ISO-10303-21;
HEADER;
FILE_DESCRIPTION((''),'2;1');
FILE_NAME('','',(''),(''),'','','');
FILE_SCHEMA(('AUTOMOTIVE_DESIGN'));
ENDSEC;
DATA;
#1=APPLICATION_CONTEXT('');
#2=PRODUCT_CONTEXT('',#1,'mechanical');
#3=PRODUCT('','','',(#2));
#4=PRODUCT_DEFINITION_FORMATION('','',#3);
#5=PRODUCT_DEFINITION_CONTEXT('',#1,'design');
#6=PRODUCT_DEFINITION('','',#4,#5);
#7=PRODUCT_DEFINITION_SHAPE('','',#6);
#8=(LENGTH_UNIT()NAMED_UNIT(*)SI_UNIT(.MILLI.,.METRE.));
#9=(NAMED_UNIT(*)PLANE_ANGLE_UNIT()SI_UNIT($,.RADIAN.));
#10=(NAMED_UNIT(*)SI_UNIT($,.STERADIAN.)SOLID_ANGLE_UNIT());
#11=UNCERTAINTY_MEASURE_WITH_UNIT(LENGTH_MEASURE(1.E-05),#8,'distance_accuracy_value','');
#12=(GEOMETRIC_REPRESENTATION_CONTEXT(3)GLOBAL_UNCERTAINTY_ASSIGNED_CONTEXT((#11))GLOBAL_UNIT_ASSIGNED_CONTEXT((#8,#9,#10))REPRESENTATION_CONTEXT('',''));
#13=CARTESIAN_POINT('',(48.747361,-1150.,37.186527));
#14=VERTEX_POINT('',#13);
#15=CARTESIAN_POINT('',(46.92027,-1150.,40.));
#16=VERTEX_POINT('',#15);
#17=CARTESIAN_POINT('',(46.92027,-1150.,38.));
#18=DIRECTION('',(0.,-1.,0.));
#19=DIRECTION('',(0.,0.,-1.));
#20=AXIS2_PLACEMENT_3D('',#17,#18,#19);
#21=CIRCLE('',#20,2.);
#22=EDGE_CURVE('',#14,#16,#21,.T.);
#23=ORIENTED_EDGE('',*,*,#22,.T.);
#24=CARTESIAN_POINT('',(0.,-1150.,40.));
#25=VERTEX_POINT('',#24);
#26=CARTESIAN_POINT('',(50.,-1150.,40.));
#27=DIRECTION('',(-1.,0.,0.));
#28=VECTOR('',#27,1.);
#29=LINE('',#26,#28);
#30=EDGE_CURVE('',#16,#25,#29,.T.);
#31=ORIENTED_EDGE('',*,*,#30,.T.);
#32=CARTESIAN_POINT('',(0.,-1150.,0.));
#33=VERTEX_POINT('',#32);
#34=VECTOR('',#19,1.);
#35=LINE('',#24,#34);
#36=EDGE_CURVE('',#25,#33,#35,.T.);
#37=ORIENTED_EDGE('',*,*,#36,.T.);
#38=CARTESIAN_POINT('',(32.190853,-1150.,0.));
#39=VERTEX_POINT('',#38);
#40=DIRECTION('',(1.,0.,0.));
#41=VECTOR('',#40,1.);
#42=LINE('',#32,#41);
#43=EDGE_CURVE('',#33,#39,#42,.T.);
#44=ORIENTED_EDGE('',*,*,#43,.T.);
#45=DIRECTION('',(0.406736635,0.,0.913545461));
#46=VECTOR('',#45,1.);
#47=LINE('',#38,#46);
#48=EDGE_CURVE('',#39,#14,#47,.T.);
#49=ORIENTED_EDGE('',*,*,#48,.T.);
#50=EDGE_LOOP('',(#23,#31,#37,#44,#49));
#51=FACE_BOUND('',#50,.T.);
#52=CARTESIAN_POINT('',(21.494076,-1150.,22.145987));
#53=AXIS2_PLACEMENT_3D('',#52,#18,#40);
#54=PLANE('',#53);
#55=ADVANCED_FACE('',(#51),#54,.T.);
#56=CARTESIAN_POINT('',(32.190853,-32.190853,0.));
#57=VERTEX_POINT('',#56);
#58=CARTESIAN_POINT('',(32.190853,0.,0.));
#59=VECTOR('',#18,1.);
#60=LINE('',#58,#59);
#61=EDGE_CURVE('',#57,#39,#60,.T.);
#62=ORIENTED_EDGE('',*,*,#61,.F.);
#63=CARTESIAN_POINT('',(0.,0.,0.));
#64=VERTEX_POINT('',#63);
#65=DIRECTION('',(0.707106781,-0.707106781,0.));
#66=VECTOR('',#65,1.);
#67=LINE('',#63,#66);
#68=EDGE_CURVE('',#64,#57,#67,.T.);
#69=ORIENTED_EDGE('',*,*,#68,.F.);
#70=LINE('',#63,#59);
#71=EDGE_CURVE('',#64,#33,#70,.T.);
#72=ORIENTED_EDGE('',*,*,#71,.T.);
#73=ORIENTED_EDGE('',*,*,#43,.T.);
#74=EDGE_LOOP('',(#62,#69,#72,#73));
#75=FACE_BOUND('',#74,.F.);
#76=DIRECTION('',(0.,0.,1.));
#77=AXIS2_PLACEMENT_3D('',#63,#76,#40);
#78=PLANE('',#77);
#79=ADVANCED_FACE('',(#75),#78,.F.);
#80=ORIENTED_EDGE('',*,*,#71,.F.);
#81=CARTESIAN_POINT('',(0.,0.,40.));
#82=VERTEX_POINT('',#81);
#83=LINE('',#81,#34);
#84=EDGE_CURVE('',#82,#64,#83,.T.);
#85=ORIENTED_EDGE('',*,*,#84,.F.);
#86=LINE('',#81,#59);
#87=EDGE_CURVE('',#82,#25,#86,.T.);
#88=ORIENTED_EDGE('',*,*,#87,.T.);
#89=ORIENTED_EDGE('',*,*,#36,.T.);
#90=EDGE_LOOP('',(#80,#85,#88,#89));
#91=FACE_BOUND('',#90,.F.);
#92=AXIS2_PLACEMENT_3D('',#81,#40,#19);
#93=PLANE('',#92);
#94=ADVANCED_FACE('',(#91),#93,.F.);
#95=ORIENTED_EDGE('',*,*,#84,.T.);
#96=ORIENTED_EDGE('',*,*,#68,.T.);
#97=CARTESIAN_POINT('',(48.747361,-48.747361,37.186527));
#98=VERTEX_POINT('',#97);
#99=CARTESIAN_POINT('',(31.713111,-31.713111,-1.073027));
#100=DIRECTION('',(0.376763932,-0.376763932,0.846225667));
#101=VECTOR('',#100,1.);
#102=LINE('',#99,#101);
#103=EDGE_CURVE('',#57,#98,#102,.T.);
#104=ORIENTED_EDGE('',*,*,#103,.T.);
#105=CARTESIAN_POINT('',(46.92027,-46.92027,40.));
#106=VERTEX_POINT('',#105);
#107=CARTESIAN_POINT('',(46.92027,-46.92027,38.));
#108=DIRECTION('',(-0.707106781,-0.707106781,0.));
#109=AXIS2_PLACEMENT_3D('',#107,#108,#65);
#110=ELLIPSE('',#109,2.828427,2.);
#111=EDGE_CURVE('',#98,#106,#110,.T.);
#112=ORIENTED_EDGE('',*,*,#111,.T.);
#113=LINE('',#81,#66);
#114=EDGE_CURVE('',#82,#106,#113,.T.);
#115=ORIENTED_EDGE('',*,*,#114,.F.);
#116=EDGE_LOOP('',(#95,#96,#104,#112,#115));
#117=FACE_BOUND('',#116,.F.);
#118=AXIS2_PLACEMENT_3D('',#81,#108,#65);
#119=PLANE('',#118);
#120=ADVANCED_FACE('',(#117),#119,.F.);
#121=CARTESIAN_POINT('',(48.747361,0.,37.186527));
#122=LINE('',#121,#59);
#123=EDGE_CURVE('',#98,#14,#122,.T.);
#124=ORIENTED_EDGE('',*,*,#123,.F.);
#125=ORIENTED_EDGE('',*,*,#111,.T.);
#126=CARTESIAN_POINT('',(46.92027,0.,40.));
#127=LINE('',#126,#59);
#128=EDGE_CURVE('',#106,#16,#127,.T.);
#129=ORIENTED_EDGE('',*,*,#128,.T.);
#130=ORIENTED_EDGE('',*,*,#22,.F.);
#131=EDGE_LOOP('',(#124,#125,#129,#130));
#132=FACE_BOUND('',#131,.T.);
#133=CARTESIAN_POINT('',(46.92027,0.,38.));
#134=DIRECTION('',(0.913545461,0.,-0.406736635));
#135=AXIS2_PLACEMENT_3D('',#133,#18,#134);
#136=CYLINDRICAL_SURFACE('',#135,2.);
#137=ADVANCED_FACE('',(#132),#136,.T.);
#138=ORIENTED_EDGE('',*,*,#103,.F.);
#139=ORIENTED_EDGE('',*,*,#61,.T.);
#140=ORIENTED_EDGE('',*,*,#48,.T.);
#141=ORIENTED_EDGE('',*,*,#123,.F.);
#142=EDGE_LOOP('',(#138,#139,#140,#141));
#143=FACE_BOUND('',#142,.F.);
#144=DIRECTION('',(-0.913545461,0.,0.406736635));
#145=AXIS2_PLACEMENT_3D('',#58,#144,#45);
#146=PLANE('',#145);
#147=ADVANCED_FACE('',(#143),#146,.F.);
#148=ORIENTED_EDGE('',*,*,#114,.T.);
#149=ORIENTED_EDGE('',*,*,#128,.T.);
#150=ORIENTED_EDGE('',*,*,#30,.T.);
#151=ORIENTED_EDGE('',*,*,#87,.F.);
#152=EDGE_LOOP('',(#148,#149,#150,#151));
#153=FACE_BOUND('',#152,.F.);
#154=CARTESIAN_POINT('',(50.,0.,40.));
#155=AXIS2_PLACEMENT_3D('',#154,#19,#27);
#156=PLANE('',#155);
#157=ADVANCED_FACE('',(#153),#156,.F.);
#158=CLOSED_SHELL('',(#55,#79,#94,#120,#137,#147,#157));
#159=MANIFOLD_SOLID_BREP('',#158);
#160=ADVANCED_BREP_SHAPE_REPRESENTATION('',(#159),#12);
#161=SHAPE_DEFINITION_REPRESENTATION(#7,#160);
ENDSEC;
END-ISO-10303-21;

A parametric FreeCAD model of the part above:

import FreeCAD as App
import Part
import Sketcher

V = App.Vector
Q = App.Units.Quantity


def edges_at(feature, points):
    """Names of the edges that pass closest to the given points."""
    edges = feature.Shape.Edges
    near = lambda p: min(range(len(edges)), key=lambda i: edges[i].distToShape(Part.Vertex(*p))[0])
    return sorted({f"Edge{near(p) + 1}" for p in points})

doc = App.newDocument("Part")
params = doc.addObject("Spreadsheet::Sheet", "Params")
for row, (alias, value) in enumerate([
    ("sketch1_width", "50 mm"),
    ("sketch1_height", "40 mm"),
    ("pad1_length", "1150 mm"),
    ("fillet_radius", "2 mm"),
], start=1):
    params.set(f"A{row}", alias)
    params.set(f"B{row}", "=" + value)
    params.setAlias(f"B{row}", alias)

body = doc.addObject("PartDesign::Body", "Body")

sketch1 = doc.addObject("Sketcher::SketchObject", "Sketch")
body.addObject(sketch1)
sketch1.AttachmentSupport = (doc.XZ_Plane, [""])
sketch1.MapMode = "FlatFace"
sketch1.addGeometry(Part.LineSegment(V(0, 40, 0), V(0, 0, 0)), False)
sketch1.addGeometry(Part.LineSegment(V(0, 0, 0), V(32.190853, 0, 0)), False)
sketch1.addGeometry(Part.LineSegment(V(32.190853, 0, 0), V(50, 40, 0)), False)
sketch1.addGeometry(Part.LineSegment(V(50, 40, 0), V(0, 40, 0)), False)
sketch1.addConstraint(Sketcher.Constraint("Coincident", 0, 2, 1, 1))
sketch1.addConstraint(Sketcher.Constraint("Coincident", 1, 2, 2, 1))
sketch1.addConstraint(Sketcher.Constraint("Coincident", 2, 2, 3, 1))
sketch1.addConstraint(Sketcher.Constraint("Coincident", 3, 2, 0, 1))
sketch1.addConstraint(Sketcher.Constraint("Vertical", 0))
sketch1.addConstraint(Sketcher.Constraint("Horizontal", 1))
sketch1.addConstraint(Sketcher.Constraint("Horizontal", 3))
sketch1.addConstraint(Sketcher.Constraint("Coincident", 0, 2, -1, 1))
sketch1.addConstraint(Sketcher.Constraint("DistanceX", 3, 2, 3, 1, 50.0))
sketch1.addConstraint(Sketcher.Constraint("DistanceY", 0, 2, 0, 1, 40.0))
sketch1.addConstraint(Sketcher.Constraint("Angle", 2, Q("66 deg")))
sketch1.setExpression("Constraints[8]", "Params.sketch1_width")
sketch1.setExpression("Constraints[9]", "Params.sketch1_height")
pad1 = doc.addObject("PartDesign::Pad", "Pad")
body.addObject(pad1)
pad1.Profile = sketch1
pad1.setExpression("Length", "Params.pad1_length")
doc.recompute()

fillet = doc.addObject("PartDesign::Fillet", "Fillet")
body.addObject(fillet)
fillet.Base = (pad1, edges_at(pad1, [(50, -575, 40)]))
fillet.setExpression("Radius", "Params.fillet_radius")

sketch2 = doc.addObject("Sketcher::SketchObject", "Sketch001")
body.addObject(sketch2)
sketch2.AttachmentSupport = (doc.XY_Plane, [""])
sketch2.MapMode = "FlatFace"
sketch2.AttachmentOffset = App.Placement(V(0, 0, 40), App.Rotation())
sketch2.addGeometry(Part.LineSegment(V(57.095478, -57.095478, 0), V(57.004068, 0, 0)), False)
sketch2.addGeometry(Part.LineSegment(V(57.004068, 0, 0), V(0, 0, 0)), False)
sketch2.addGeometry(Part.LineSegment(V(0, 0, 0), V(57.095478, -57.095478, 0)), False)
sketch2.addConstraint(Sketcher.Constraint("Coincident", 0, 2, 1, 1))
sketch2.addConstraint(Sketcher.Constraint("Coincident", 1, 2, 2, 1))
sketch2.addConstraint(Sketcher.Constraint("Coincident", 2, 2, 0, 1))
sketch2.addConstraint(Sketcher.Constraint("Horizontal", 1))
sketch2.addConstraint(Sketcher.Constraint("Coincident", 1, 2, -1, 1))
sketch2.addConstraint(Sketcher.Constraint("Angle", 2, Q("-45 deg")))
sketch2.addConstraint(Sketcher.Constraint("Distance", 2, 80.745199))
sketch2.addConstraint(Sketcher.Constraint("DistanceX", 1, 2, 1, 1, 57.004068))
pocket1 = doc.addObject("PartDesign::Pocket", "Pocket")
body.addObject(pocket1)
pocket1.Profile = sketch2
pocket1.Type = "ThroughAll"

doc.recompute()
